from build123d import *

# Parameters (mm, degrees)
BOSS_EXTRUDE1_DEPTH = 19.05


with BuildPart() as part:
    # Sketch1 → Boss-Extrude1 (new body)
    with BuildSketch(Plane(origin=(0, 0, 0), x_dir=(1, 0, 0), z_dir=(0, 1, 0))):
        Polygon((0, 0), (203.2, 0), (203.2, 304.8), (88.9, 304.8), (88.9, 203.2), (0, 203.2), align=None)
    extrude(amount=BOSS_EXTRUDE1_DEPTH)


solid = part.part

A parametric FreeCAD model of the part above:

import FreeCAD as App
import Part
import Sketcher
Q = App.Units.Quantity


def add_polygon(sketch, points):
    """Adds a closed chain of lines whose ends are joined by coincident constraints."""
    first, n = sketch.GeometryCount, len(points)
    for a, b in zip(points, points[1:] + points[:1]):
        sketch.addGeometry(Part.LineSegment(App.Vector(*a, 0), App.Vector(*b, 0)), False)
    for i in range(n):
        sketch.addConstraint(Sketcher.Constraint("Coincident", first + i, 2, first + (i + 1) % n, 1))

doc = App.newDocument("Part")
body = doc.addObject("PartDesign::Body", "Body")

sketch1 = body.newObject("Sketcher::SketchObject", "Sketch")
sketch1.AttachmentSupport = (doc.getObject("XZ_Plane"), [""])
sketch1.MapMode = "FlatFace"
add_polygon(sketch1, [(0, 0), (203, 0), (203, -305), (89, -305), (89, -203), (0, -203)])
sketch1.addConstraint(Sketcher.Constraint("Horizontal", 0))
sketch1.addConstraint(Sketcher.Constraint("Vertical", 1))
sketch1.addConstraint(Sketcher.Constraint("Horizontal", 2))
sketch1.addConstraint(Sketcher.Constraint("Vertical", 3))
sketch1.addConstraint(Sketcher.Constraint("Horizontal", 4))
sketch1.addConstraint(Sketcher.Constraint("Vertical", 5))
sketch1.addConstraint(Sketcher.Constraint("Coincident", 5, 2, -1, 1))
sketch1.addConstraint(Sketcher.Constraint("Equal", 0, 5))
sketch1.addConstraint(Sketcher.Constraint("DistanceX", 0, 1, 0, 2, Q("8 in")))
sketch1.addConstraint(Sketcher.Constraint("DistanceY", 1, 2, 1, 1, Q("12 in")))
sketch1.addConstraint(Sketcher.Constraint("DistanceX", 2, 2, 2, 1, Q("4.5 in")))
pad1 = body.newObject("PartDesign::Pad", "Pad")
pad1.Profile = sketch1
pad1.Length = Q("0.75 in")
pad1.Reversed = True

doc.recompute()
